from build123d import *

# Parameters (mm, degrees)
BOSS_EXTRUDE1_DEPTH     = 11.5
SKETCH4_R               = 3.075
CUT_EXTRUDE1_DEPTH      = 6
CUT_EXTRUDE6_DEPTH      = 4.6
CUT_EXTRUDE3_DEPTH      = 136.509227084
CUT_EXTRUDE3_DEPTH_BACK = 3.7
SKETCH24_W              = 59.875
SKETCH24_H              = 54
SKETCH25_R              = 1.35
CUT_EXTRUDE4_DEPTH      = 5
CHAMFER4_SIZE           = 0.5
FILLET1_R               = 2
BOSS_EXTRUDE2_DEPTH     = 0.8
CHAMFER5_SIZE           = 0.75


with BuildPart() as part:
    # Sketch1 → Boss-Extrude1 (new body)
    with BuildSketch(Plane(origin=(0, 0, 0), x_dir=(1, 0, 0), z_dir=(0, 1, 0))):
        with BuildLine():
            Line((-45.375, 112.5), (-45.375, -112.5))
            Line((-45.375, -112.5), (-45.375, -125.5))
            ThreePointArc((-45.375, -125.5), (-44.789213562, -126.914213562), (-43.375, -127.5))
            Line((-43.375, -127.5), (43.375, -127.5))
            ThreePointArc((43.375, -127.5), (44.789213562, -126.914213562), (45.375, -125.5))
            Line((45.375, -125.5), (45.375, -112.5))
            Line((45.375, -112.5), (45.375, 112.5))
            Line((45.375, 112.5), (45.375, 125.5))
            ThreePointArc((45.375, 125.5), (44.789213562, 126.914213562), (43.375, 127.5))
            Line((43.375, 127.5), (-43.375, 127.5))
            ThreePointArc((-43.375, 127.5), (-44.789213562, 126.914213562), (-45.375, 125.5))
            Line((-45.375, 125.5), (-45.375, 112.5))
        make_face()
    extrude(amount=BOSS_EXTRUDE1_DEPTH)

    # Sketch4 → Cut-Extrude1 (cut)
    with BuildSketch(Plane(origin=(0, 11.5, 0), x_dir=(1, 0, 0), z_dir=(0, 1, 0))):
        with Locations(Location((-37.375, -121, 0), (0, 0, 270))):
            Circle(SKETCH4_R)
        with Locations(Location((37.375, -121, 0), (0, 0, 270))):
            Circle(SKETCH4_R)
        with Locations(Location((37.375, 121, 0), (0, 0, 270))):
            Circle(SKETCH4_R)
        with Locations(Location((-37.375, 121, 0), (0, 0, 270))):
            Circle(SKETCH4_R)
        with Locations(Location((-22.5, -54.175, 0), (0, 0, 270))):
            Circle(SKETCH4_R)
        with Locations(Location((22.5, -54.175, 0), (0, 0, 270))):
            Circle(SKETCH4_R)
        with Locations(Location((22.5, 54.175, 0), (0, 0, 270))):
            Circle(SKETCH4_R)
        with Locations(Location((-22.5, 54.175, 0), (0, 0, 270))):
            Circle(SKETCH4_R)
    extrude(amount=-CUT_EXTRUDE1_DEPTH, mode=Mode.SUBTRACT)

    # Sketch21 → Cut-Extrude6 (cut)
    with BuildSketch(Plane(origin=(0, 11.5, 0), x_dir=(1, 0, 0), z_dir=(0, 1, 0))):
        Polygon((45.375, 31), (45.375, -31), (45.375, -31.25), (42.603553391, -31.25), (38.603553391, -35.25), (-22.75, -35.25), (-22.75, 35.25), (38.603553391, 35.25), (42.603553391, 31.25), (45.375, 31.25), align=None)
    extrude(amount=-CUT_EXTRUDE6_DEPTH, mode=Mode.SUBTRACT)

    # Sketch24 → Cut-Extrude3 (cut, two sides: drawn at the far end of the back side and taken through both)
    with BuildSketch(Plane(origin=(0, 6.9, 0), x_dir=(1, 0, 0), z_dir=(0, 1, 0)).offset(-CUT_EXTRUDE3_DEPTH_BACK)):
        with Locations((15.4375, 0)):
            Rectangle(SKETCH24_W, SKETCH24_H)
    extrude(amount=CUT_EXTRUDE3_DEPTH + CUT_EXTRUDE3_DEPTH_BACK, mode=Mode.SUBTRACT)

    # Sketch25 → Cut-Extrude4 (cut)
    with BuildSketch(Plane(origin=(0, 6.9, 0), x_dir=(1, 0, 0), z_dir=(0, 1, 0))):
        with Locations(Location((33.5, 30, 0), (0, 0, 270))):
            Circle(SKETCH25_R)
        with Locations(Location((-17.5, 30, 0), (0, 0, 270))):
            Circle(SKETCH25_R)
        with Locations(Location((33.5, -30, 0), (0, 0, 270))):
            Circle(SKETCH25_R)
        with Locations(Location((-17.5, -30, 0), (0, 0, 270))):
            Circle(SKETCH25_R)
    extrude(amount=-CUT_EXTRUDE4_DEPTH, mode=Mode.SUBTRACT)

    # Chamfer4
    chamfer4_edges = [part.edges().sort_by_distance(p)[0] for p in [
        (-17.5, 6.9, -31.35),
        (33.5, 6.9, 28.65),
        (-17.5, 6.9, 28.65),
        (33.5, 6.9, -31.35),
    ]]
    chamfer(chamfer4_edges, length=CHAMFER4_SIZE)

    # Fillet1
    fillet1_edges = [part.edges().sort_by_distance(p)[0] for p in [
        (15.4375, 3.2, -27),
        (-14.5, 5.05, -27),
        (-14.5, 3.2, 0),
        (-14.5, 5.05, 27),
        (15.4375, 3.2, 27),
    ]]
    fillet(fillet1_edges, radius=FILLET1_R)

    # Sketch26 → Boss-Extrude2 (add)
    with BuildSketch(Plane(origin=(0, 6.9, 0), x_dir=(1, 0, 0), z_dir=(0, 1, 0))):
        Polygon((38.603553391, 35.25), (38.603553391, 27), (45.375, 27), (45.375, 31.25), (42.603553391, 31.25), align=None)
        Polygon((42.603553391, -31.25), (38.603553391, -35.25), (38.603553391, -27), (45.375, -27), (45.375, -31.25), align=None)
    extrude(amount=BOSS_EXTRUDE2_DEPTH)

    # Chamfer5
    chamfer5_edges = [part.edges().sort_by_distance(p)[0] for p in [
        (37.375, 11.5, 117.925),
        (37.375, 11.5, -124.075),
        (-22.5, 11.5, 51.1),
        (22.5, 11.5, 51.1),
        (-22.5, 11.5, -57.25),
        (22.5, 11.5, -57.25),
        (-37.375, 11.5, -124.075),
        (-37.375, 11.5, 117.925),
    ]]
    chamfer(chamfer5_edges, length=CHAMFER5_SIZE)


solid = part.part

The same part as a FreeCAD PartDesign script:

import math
import FreeCAD as App
import Part
import Sketcher
Q = App.Units.Quantity


def edges_at(feature, points):
    """Names of the edges that pass closest to the given points."""
    edges = feature.Shape.Edges
    near = lambda p: min(range(len(edges)), key=lambda i: edges[i].distToShape(Part.Vertex(*p))[0])
    return sorted({f"Edge{near(p) + 1}" for p in points})


def add_polygon(sketch, points):
    """Adds a closed chain of lines whose ends are joined by coincident constraints."""
    first, n = sketch.GeometryCount, len(points)
    for a, b in zip(points, points[1:] + points[:1]):
        sketch.addGeometry(Part.LineSegment(App.Vector(*a, 0), App.Vector(*b, 0)), False)
    for i in range(n):
        sketch.addConstraint(Sketcher.Constraint("Coincident", first + i, 2, first + (i + 1) % n, 1))

doc = App.newDocument("Part")
body = doc.addObject("PartDesign::Body", "Body")

# Sketch on XZ plane
sketch1 = doc.addObject("Sketcher::SketchObject", "Sketch")
body.addObject(sketch1)
sketch1.AttachmentSupport = (doc.XZ_Plane, [""])
sketch1.MapMode = "FlatFace"
sketch1.addGeometry([
    Part.ArcOfCircle(Part.Circle(App.Vector(-43.4, 125.5, 0), App.Vector(0, 0, 1), 2), math.radians(90), math.radians(180)),  # 0
    Part.LineSegment(App.Vector(-43.4, 127.5, 0), App.Vector(43.4, 127.5, 0)),  # 1
    Part.ArcOfCircle(Part.Circle(App.Vector(43.4, 125.5, 0), App.Vector(0, 0, 1), 2), math.radians(0), math.radians(90)),  # 2
    Part.LineSegment(App.Vector(45.4, 125.5, 0), App.Vector(45.4, -125.5, 0)),  # 3
    Part.ArcOfCircle(Part.Circle(App.Vector(43.4, -125.5, 0), App.Vector(0, 0, 1), 2), math.radians(-90), math.radians(0)),  # 4
    Part.LineSegment(App.Vector(43.4, -127.5, 0), App.Vector(-43.4, -127.5, 0)),  # 5
    Part.ArcOfCircle(Part.Circle(App.Vector(-43.4, -125.5, 0), App.Vector(0, 0, 1), 2), math.radians(-180), math.radians(-90)),  # 6
    Part.LineSegment(App.Vector(-45.4, -125.5, 0), App.Vector(-45.4, 125.5, 0)),  # 7
], False)
sketch1.addConstraint([
    Sketcher.Constraint("Tangent", 0, 1, 1, 1),
    Sketcher.Constraint("Tangent", 1, 2, 2, 2),
    Sketcher.Constraint("Tangent", 2, 1, 3, 1),
    Sketcher.Constraint("Tangent", 3, 2, 4, 2),
    Sketcher.Constraint("Tangent", 4, 1, 5, 1),
    Sketcher.Constraint("Tangent", 5, 2, 6, 2),
    Sketcher.Constraint("Tangent", 6, 1, 7, 1),
    Sketcher.Constraint("Tangent", 7, 2, 0, 2),
    Sketcher.Constraint("Horizontal", 1),
    Sketcher.Constraint("Vertical", 3),
    Sketcher.Constraint("Horizontal", 5),
    Sketcher.Constraint("Vertical", 7),
    Sketcher.Constraint("Equal", 0, 2),
    Sketcher.Constraint("Equal", 2, 4),
    Sketcher.Constraint("Equal", 4, 6),
    Sketcher.Constraint("Symmetric", 0, 3, 4, 3, -1, 1),
    Sketcher.Constraint("Radius", 0, Q("2 mm")),
    Sketcher.Constraint("DistanceY", 3, 2, 3, 1, Q("251 mm")),
    Sketcher.Constraint("DistanceX", 1, 1, 1, 2, Q("86.75 mm")),
])
pad1 = doc.addObject("PartDesign::Pad", "Pad")
body.addObject(pad1)
pad1.Profile = sketch1
pad1.Length = 11.5
pad1.Reversed = True

# Sketch on XZ plane
sketch2 = doc.addObject("Sketcher::SketchObject", "Sketch001")
body.addObject(sketch2)
sketch2.AttachmentSupport = (doc.XZ_Plane, [""])
sketch2.MapMode = "FlatFace"
sketch2.AttachmentOffset = App.Placement(App.Vector(0, 0, -11.5), App.Rotation())
sketch2.addGeometry([
    Part.Circle(App.Vector(-37.4, 121, 0), App.Vector(0, 0, 1), 3.1),  # 0
    Part.Circle(App.Vector(37.4, 121, 0), App.Vector(0, 0, 1), 3.1),  # 1
    Part.Circle(App.Vector(37.4, -121, 0), App.Vector(0, 0, 1), 3.1),  # 2
    Part.Circle(App.Vector(-37.4, -121, 0), App.Vector(0, 0, 1), 3.1),  # 3
    Part.Circle(App.Vector(-22.5, 54.2, 0), App.Vector(0, 0, 1), 3.1),  # 4
    Part.Circle(App.Vector(22.5, 54.2, 0), App.Vector(0, 0, 1), 3.1),  # 5
    Part.Circle(App.Vector(22.5, -54.2, 0), App.Vector(0, 0, 1), 3.1),  # 6
    Part.Circle(App.Vector(-22.5, -54.2, 0), App.Vector(0, 0, 1), 3.1),  # 7
], False)
sketch2.addConstraint([
    Sketcher.Constraint("Equal", 0, 1),
    Sketcher.Constraint("Equal", 1, 2),
    Sketcher.Constraint("Equal", 2, 3),
    Sketcher.Constraint("Equal", 3, 4),
    Sketcher.Constraint("Equal", 4, 5),
    Sketcher.Constraint("Equal", 5, 6),
    Sketcher.Constraint("Equal", 6, 7),
    Sketcher.Constraint("Symmetric", 0, 3, 2, 3, -1, 1),
    Sketcher.Constraint("Symmetric", 1, 3, 3, 3, -1, 1),
    Sketcher.Constraint("Symmetric", 4, 3, 6, 3, -1, 1),
    Sketcher.Constraint("Symmetric", 5, 3, 7, 3, -1, 1),
    Sketcher.Constraint("Symmetric", 0, 3, 1, 3, -2),
    Sketcher.Constraint("Symmetric", 4, 3, 5, 3, -2),
    Sketcher.Constraint("Diameter", 0, Q("6.15 mm")),
    Sketcher.Constraint("DistanceY", -1, 1, 0, 3, Q("121 mm")),
    Sketcher.Constraint("DistanceX", 4, 3, 5, 3, Q("45 mm")),
    Sketcher.Constraint("DistanceX", 0, 3, 1, 3, Q("74.75 mm")),
    Sketcher.Constraint("DistanceY", 6, 3, 5, 3, Q("108.35 mm")),
])
pocket1 = doc.addObject("PartDesign::Pocket", "Pocket")
body.addObject(pocket1)
pocket1.Profile = sketch2
pocket1.Length = 6
pocket1.Reversed = True

# Sketch on XZ plane
sketch3 = doc.addObject("Sketcher::SketchObject", "Sketch002")
body.addObject(sketch3)
sketch3.AttachmentSupport = (doc.XZ_Plane, [""])
sketch3.MapMode = "FlatFace"
sketch3.AttachmentOffset = App.Placement(App.Vector(0, 0, -11.5), App.Rotation())
add_polygon(sketch3, [(45.4, 31.2), (45.4, -31.2), (42.6, -31.2), (38.6, -35.2), (-22.8, -35.2), (-22.8, 35.2), (38.6, 35.2), (42.6, 31.2)])  # lines 0-7
sketch3.addConstraint([
    Sketcher.Constraint("Vertical", 0),
    Sketcher.Constraint("Horizontal", 1),
    Sketcher.Constraint("Horizontal", 3),
    Sketcher.Constraint("Vertical", 4),
    Sketcher.Constraint("Horizontal", 5),
    Sketcher.Constraint("Horizontal", 7),
    Sketcher.Constraint("Symmetric", 2, 2, 5, 2, -1),
    Sketcher.Constraint("Symmetric", 1, 2, 6, 2, -1),
    Sketcher.Constraint("Perpendicular", 2, 6),
    Sketcher.Constraint("DistanceY", 0, 2, 0, 1, Q("62.5 mm")),
    Sketcher.Constraint("DistanceY", 4, 1, 4, 2, Q("70.5 mm")),
    Sketcher.Constraint("DistanceX", 3, 2, -1, 1, Q("22.75 mm")),
    Sketcher.Constraint("DistanceX", -1, 1, 0, 2, Q("45.375 mm")),
    Sketcher.Constraint("DistanceX", 1, 2, 1, 1, Q("2.771447 mm")),
])
pocket2 = doc.addObject("PartDesign::Pocket", "Pocket001")
body.addObject(pocket2)
pocket2.Profile = sketch3
pocket2.Length = 4.6
pocket2.Reversed = True

# Sketch on XZ plane
sketch4 = doc.addObject("Sketcher::SketchObject", "Sketch003")
body.addObject(sketch4)
sketch4.AttachmentSupport = (doc.XZ_Plane, [""])
sketch4.MapMode = "FlatFace"
sketch4.AttachmentOffset = App.Placement(App.Vector(0, 0, -6.9), App.Rotation())
add_polygon(sketch4, [(-14, -27), (-14, 27), (45, 27), (45, -27)])  # lines 0-3
sketch4.addConstraint([
    Sketcher.Constraint("Vertical", 0),
    Sketcher.Constraint("Horizontal", 1),
    Sketcher.Constraint("Vertical", 2),
    Sketcher.Constraint("Horizontal", 3),
    Sketcher.Constraint("DistanceY", 0, 1, 0, 2, Q("54 mm")),
    Sketcher.Constraint("DistanceY", -1, 1, 0, 2, Q("27 mm")),
    Sketcher.Constraint("DistanceX", 0, 2, -1, 1, Q("14.5 mm")),
    Sketcher.Constraint("DistanceX", 1, 1, 1, 2, Q("59.875 mm")),
])
pocket3 = doc.addObject("PartDesign::Pocket", "Pocket002")
body.addObject(pocket3)
pocket3.Profile = sketch4
pocket3.Type = "TwoLengths"
pocket3.Length = 136.509227
pocket3.Length2 = 3.7

# Sketch on XZ plane
sketch5 = doc.addObject("Sketcher::SketchObject", "Sketch004")
body.addObject(sketch5)
sketch5.AttachmentSupport = (doc.XZ_Plane, [""])
sketch5.MapMode = "FlatFace"
sketch5.AttachmentOffset = App.Placement(App.Vector(0, 0, -6.9), App.Rotation())
sketch5.addGeometry([
    Part.Circle(App.Vector(33.5, -30, 0), App.Vector(0, 0, 1), 1.4),
    Part.Circle(App.Vector(-17.5, -30, 0), App.Vector(0, 0, 1), 1.4),
    Part.Circle(App.Vector(33.5, 30, 0), App.Vector(0, 0, 1), 1.4),
    Part.Circle(App.Vector(-17.5, 30, 0), App.Vector(0, 0, 1), 1.4),
], False)
sketch5.addConstraint([
    Sketcher.Constraint("Equal", 0, 1),
    Sketcher.Constraint("Equal", 1, 2),
    Sketcher.Constraint("Equal", 2, 3),
    Sketcher.Constraint("Symmetric", 0, 3, 2, 3, -1),
    Sketcher.Constraint("Symmetric", 1, 3, 3, 3, -1),
    Sketcher.Constraint("Horizontal", 0, 3, 1, 3),
    Sketcher.Constraint("Diameter", 0, Q("2.7 mm")),
    Sketcher.Constraint("DistanceY", 0, 3, -1, 1, Q("30 mm")),
    Sketcher.Constraint("DistanceX", 1, 3, 0, 3, Q("51 mm")),
    Sketcher.Constraint("DistanceX", -1, 1, 0, 3, Q("33.5 mm")),
])
pocket4 = doc.addObject("PartDesign::Pocket", "Pocket003")
body.addObject(pocket4)
pocket4.Profile = sketch5
pocket4.Length = 5
pocket4.Reversed = True
doc.recompute()

chamfer = doc.addObject("PartDesign::Chamfer", "Chamfer")
body.addObject(chamfer)
chamfer.Base = (pocket4, edges_at(pocket4, [
    (-17.5, 6.9, -31.35),
    (33.5, 6.9, 28.65),
    (-17.5, 6.9, 28.65),
    (33.5, 6.9, -31.35),
]))
chamfer.Size = 0.5
doc.recompute()

fillet = doc.addObject("PartDesign::Fillet", "Fillet")
body.addObject(fillet)
fillet.Base = (chamfer, edges_at(chamfer, [
    (15.438, 3.2, -27),
    (-14.5, 5.05, -27),
    (-14.5, 3.2, 0),
    (-14.5, 5.05, 27),
    (15.438, 3.2, 27),
]))
fillet.Radius = 2

# Sketch on XZ plane
sketch6 = doc.addObject("Sketcher::SketchObject", "Sketch005")
body.addObject(sketch6)
sketch6.AttachmentSupport = (doc.XZ_Plane, [""])
sketch6.MapMode = "FlatFace"
sketch6.AttachmentOffset = App.Placement(App.Vector(0, 0, -6.9), App.Rotation())
add_polygon(sketch6, [(38.6, -35.2), (38.6, -27), (45.4, -27), (45.4, -31.2), (42.6, -31.2)])  # lines 0-4
add_polygon(sketch6, [(38.6, 35.2), (42.6, 31.2), (45.4, 31.2), (45.4, 27), (38.6, 27)])  # lines 5-9
sketch6.addConstraint([
    Sketcher.Constraint("Vertical", 0),
    Sketcher.Constraint("Horizontal", 1),
    Sketcher.Constraint("Vertical", 2),
    Sketcher.Constraint("Horizontal", 3),
    Sketcher.Constraint("Horizontal", 6),
    Sketcher.Constraint("Vertical", 7),
    Sketcher.Constraint("Horizontal", 8),
    Sketcher.Constraint("Vertical", 9),
    Sketcher.Constraint("Symmetric", 3, 2, 5, 2, -1),
    Sketcher.Constraint("Symmetric", 1, 2, 7, 2, -1),
    Sketcher.Constraint("Symmetric", 4, 2, 9, 2, -1),
    Sketcher.Constraint("Perpendicular", 4, 5),
    Sketcher.Constraint("DistanceY", 0, 2, -1, 1, Q("27 mm")),
    Sketcher.Constraint("DistanceX", 0, 2, 3, 2, Q("4 mm")),
    Sketcher.Constraint("DistanceY", 0, 1, 0, 2, Q("8.25 mm")),
    Sketcher.Constraint("DistanceX", -1, 1, 1, 2, Q("45.375 mm")),
    Sketcher.Constraint("DistanceX", 1, 1, 1, 2, Q("6.771447 mm")),
])
pad2 = doc.addObject("PartDesign::Pad", "Pad001")
body.addObject(pad2)
pad2.Profile = sketch6
pad2.Length = 0.8
pad2.Reversed = True
doc.recompute()

chamfer2 = doc.addObject("PartDesign::Chamfer", "Chamfer001")
body.addObject(chamfer2)
chamfer2.Base = (pad2, edges_at(pad2, [
    (37.375, 11.5, 117.925),
    (37.375, 11.5, -124.075),
    (-22.5, 11.5, 51.1),
    (22.5, 11.5, 51.1),
    (-22.5, 11.5, -57.25),
    (22.5, 11.5, -57.25),
    (-37.375, 11.5, -124.075),
    (-37.375, 11.5, 117.925),
]))
chamfer2.Size = 0.75

doc.recompute()
